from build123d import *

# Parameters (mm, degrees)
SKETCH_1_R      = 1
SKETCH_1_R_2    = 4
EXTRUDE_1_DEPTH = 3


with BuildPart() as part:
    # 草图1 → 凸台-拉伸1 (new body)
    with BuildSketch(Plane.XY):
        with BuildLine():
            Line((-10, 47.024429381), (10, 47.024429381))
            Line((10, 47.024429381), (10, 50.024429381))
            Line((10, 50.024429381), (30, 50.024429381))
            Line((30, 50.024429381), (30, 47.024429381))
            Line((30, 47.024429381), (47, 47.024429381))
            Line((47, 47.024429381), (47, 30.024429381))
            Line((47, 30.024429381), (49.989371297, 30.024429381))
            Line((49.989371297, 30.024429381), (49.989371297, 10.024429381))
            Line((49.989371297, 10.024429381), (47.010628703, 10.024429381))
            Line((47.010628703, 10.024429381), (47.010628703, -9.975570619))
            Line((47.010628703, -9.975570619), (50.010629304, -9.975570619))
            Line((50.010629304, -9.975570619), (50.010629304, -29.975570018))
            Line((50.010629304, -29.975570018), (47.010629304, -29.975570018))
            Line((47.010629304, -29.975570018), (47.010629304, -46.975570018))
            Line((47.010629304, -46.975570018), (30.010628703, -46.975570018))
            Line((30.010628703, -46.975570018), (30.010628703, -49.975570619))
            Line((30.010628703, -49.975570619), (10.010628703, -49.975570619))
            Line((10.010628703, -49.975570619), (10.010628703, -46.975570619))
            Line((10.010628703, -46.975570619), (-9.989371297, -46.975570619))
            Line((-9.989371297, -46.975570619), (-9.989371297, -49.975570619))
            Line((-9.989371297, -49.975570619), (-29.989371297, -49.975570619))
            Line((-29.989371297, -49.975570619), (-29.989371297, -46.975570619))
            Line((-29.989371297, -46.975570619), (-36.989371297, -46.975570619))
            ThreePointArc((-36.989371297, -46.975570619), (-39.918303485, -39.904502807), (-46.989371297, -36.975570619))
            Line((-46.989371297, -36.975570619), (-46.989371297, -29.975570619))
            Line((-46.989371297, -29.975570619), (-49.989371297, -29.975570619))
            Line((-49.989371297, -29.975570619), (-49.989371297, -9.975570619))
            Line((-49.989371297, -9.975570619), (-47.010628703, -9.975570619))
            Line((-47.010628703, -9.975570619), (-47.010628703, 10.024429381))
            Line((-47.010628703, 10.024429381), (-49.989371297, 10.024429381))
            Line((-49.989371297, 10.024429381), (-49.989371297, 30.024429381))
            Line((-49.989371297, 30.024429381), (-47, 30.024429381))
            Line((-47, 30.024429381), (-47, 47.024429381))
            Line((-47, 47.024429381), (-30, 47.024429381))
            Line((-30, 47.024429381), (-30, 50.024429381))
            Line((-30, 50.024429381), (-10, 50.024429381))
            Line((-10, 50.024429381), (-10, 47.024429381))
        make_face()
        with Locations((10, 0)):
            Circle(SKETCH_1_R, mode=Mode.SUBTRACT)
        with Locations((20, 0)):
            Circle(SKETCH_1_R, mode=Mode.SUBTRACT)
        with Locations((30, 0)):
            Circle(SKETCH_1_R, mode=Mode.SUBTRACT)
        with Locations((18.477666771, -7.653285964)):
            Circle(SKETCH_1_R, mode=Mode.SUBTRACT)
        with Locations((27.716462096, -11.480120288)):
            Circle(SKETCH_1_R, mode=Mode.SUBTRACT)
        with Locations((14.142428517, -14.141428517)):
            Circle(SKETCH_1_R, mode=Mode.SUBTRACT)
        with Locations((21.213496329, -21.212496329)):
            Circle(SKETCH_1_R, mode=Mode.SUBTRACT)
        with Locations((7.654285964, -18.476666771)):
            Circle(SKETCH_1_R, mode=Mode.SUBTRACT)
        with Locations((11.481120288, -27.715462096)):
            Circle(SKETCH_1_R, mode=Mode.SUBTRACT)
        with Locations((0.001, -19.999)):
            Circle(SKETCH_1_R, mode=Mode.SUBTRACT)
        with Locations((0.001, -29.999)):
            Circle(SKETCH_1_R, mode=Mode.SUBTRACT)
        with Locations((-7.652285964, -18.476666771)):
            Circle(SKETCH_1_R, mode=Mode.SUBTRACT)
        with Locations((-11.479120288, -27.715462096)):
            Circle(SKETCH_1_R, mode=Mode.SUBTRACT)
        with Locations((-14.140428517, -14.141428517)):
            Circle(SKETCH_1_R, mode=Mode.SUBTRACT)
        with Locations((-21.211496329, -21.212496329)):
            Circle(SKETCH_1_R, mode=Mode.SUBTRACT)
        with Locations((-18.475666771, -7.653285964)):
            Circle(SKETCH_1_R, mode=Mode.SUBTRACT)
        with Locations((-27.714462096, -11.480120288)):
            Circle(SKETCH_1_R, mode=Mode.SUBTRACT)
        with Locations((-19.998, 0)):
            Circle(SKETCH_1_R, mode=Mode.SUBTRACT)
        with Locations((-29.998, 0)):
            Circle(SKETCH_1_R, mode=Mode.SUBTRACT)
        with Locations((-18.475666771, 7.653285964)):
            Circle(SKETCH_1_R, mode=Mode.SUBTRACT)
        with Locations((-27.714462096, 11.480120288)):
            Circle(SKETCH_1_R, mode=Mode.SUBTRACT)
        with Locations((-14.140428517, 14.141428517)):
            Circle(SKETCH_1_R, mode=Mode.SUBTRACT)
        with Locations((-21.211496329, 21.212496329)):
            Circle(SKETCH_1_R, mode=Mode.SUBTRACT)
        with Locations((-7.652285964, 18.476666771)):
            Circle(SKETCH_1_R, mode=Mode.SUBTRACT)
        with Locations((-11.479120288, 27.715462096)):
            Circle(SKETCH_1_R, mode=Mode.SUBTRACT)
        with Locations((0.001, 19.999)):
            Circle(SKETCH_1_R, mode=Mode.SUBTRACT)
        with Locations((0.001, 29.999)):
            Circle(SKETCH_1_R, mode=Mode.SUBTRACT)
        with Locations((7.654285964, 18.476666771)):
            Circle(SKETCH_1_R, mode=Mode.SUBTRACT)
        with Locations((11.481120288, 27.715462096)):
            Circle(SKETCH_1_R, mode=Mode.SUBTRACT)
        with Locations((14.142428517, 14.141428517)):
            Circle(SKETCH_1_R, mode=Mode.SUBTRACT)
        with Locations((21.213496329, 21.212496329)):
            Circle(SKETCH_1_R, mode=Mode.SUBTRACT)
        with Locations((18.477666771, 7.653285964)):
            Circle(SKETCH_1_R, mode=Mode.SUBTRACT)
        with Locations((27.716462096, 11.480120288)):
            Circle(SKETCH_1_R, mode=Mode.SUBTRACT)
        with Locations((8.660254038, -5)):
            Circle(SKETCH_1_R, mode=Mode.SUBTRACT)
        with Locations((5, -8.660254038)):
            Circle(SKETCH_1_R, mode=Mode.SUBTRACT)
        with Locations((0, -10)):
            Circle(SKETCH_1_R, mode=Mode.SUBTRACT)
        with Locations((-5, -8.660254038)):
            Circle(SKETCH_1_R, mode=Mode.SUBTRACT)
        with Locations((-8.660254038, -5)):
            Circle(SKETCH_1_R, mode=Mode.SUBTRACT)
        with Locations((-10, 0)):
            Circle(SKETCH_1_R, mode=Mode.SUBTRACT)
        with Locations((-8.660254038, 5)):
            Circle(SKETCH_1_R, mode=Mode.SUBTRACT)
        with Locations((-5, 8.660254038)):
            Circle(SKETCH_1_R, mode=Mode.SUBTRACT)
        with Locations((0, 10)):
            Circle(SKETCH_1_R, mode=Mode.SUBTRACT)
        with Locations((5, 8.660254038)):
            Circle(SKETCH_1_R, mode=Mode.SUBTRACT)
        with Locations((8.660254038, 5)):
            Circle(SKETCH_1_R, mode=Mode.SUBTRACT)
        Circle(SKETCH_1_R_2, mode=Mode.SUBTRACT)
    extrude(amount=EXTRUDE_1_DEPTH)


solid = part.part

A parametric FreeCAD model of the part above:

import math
import FreeCAD as App
import Part
import Sketcher
from FreeCAD import Vector

doc = App.newDocument("Part")
params = doc.addObject("Spreadsheet::Sheet", "Params")
for row, (alias, value) in enumerate([
    ("sketch1_diameter", "2 mm"),
    ("sketch1_diameter2", "8 mm"),
    ("sketch1_radius", "10 mm"),
    ("sketch1_width", "20 mm"),
    ("sketch1_width2", "17 mm"),
    ("pad1_length", "3 mm"),
], start=1):
    params.set(f"A{row}", alias)
    params.set(f"B{row}", "=" + value)
    params.setAlias(f"B{row}", alias)

body = doc.addObject("PartDesign::Body", "Body")

sketch1 = doc.addObject("Sketcher::SketchObject", "Sketch")
body.addObject(sketch1)
sketch1.AttachmentSupport = (doc.XY_Plane, [""])
sketch1.MapMode = "FlatFace"
sketch1.addGeometry([
    Part.LineSegment(Vector(10, 47, 0), Vector(-10, 47, 0)),
    Part.LineSegment(Vector(-10, 47, 0), Vector(-10, 50, 0)),
    Part.LineSegment(Vector(-10, 50, 0), Vector(-30, 50, 0)),
    Part.LineSegment(Vector(-30, 50, 0), Vector(-30, 47, 0)),
    Part.LineSegment(Vector(-30, 47, 0), Vector(-47, 47, 0)),
    Part.LineSegment(Vector(-47, 47, 0), Vector(-47, 30, 0)),
    Part.LineSegment(Vector(-47, 30, 0), Vector(-50, 30, 0)),
    Part.LineSegment(Vector(-50, 30, 0), Vector(-50, 10, 0)),
    Part.LineSegment(Vector(-50, 10, 0), Vector(-47, 10, 0)),
    Part.LineSegment(Vector(-47, 10, 0), Vector(-47, -10, 0)),
    Part.LineSegment(Vector(-47, -10, 0), Vector(-50, -10, 0)),
    Part.LineSegment(Vector(-50, -10, 0), Vector(-50, -30, 0)),
    Part.LineSegment(Vector(-50, -30, 0), Vector(-47, -30, 0)),
    Part.LineSegment(Vector(-47, -30, 0), Vector(-47, -37, 0)),
    Part.ArcOfCircle(Part.Circle(Vector(-47, -47, 0), Vector(0, 0, 1), 10), math.radians(0), math.radians(90)),
    Part.LineSegment(Vector(-37, -47, 0), Vector(-30, -47, 0)),
    Part.LineSegment(Vector(-30, -47, 0), Vector(-30, -50, 0)),
    Part.LineSegment(Vector(-30, -50, 0), Vector(-10, -50, 0)),
    Part.LineSegment(Vector(-10, -50, 0), Vector(-10, -47, 0)),
    Part.LineSegment(Vector(-10, -47, 0), Vector(10, -47, 0)),
    Part.LineSegment(Vector(10, -47, 0), Vector(10, -50, 0)),
    Part.LineSegment(Vector(10, -50, 0), Vector(30, -50, 0)),
    Part.LineSegment(Vector(30, -50, 0), Vector(30, -47, 0)),
    Part.LineSegment(Vector(30, -47, 0), Vector(47, -47, 0)),
    Part.LineSegment(Vector(47, -47, 0), Vector(47, -30, 0)),
    Part.LineSegment(Vector(47, -30, 0), Vector(50, -30, 0)),
    Part.LineSegment(Vector(50, -30, 0), Vector(50, -10, 0)),
    Part.LineSegment(Vector(50, -10, 0), Vector(47, -10, 0)),
    Part.LineSegment(Vector(47, -10, 0), Vector(47, 10, 0)),
    Part.LineSegment(Vector(47, 10, 0), Vector(50, 10, 0)),
    Part.LineSegment(Vector(50, 10, 0), Vector(50, 30, 0)),
    Part.LineSegment(Vector(50, 30, 0), Vector(47, 30, 0)),
    Part.LineSegment(Vector(47, 30, 0), Vector(47, 47, 0)),
    Part.LineSegment(Vector(47, 47, 0), Vector(30, 47, 0)),
    Part.LineSegment(Vector(30, 47, 0), Vector(30, 50, 0)),
    Part.LineSegment(Vector(30, 50, 0), Vector(10, 50, 0)),
    Part.LineSegment(Vector(10, 50, 0), Vector(10, 47, 0)),
    Part.Circle(Vector(21.2, -21.2, 0), Vector(0, 0, 1), 1),
    Part.Circle(Vector(11.5, -27.7, 0), Vector(0, 0, 1), 1),
    Part.Circle(Vector(7.7, -18.5, 0), Vector(0, 0, 1), 1),
    Part.Circle(Vector(27.7, -11.5, 0), Vector(0, 0, 1), 1),
    Part.Circle(Vector(18.5, -7.7, 0), Vector(0, 0, 1), 1),
    Part.Circle(Vector(14.1, -14.1, 0), Vector(0, 0, 1), 1),
    Part.Circle(Vector(5, -8.7, 0), Vector(0, 0, 1), 1),
    Part.Circle(Vector(8.7, -5, 0), Vector(0, 0, 1), 1),
    Part.Circle(Vector(0, -30, 0), Vector(0, 0, 1), 1),
    Part.Circle(Vector(-11.5, -27.7, 0), Vector(0, 0, 1), 1),
    Part.Circle(Vector(0, -20, 0), Vector(0, 0, 1), 1),
    Part.Circle(Vector(-7.7, -18.5, 0), Vector(0, 0, 1), 1),
    Part.Circle(Vector(-21.2, -21.2, 0), Vector(0, 0, 1), 1),
    Part.Circle(Vector(0, -10, 0), Vector(0, 0, 1), 1),
    Part.Circle(Vector(-5, -8.7, 0), Vector(0, 0, 1), 1),
    Part.Circle(Vector(-14.1, -14.1, 0), Vector(0, 0, 1), 1),
    Part.Circle(Vector(-8.7, -5, 0), Vector(0, 0, 1), 1),
    Part.Circle(Vector(-27.7, -11.5, 0), Vector(0, 0, 1), 1),
    Part.Circle(Vector(-18.5, -7.7, 0), Vector(0, 0, 1), 1),
    Part.Circle(Vector(30, 0, 0), Vector(0, 0, 1), 1),
    Part.Circle(Vector(20, 0, 0), Vector(0, 0, 1), 1),
    Part.Circle(Vector(18.5, 7.7, 0), Vector(0, 0, 1), 1),
    Part.Circle(Vector(27.7, 11.5, 0), Vector(0, 0, 1), 1),
    Part.Circle(Vector(10, 0, 0), Vector(0, 0, 1), 1),
    Part.Circle(Vector(8.7, 5, 0), Vector(0, 0, 1), 1),
    Part.Circle(Vector(14.1, 14.1, 0), Vector(0, 0, 1), 1),
    Part.Circle(Vector(5, 8.7, 0), Vector(0, 0, 1), 1),
    Part.Circle(Vector(21.2, 21.2, 0), Vector(0, 0, 1), 1),
    Part.Circle(Vector(7.7, 18.5, 0), Vector(0, 0, 1), 1),
    Part.Circle(Vector(11.5, 27.7, 0), Vector(0, 0, 1), 1),
    Part.Circle(Vector(0, 0, 0), Vector(0, 0, 1), 4),
    Part.Circle(Vector(-10, 0, 0), Vector(0, 0, 1), 1),
    Part.Circle(Vector(-8.7, 5, 0), Vector(0, 0, 1), 1),
    Part.Circle(Vector(0, 10, 0), Vector(0, 0, 1), 1),
    Part.Circle(Vector(-5, 8.7, 0), Vector(0, 0, 1), 1),
    Part.Circle(Vector(-14.1, 14.1, 0), Vector(0, 0, 1), 1),
    Part.Circle(Vector(-20, 0, 0), Vector(0, 0, 1), 1),
    Part.Circle(Vector(-18.5, 7.7, 0), Vector(0, 0, 1), 1),
    Part.Circle(Vector(-30, 0, 0), Vector(0, 0, 1), 1),
    Part.Circle(Vector(-27.7, 11.5, 0), Vector(0, 0, 1), 1),
    Part.Circle(Vector(-7.7, 18.5, 0), Vector(0, 0, 1), 1),
    Part.Circle(Vector(0, 20, 0), Vector(0, 0, 1), 1),
    Part.Circle(Vector(0, 30, 0), Vector(0, 0, 1), 1),
    Part.Circle(Vector(-11.5, 27.7, 0), Vector(0, 0, 1), 1),
    Part.Circle(Vector(-21.2, 21.2, 0), Vector(0, 0, 1), 1),
], False)
sketch1.addConstraint([
    Sketcher.Constraint("Coincident", 0, 2, 1, 1),
    Sketcher.Constraint("Coincident", 1, 2, 2, 1),
    Sketcher.Constraint("Coincident", 2, 2, 3, 1),
    Sketcher.Constraint("Coincident", 3, 2, 4, 1),
    Sketcher.Constraint("Coincident", 4, 2, 5, 1),
    Sketcher.Constraint("Coincident", 5, 2, 6, 1),
    Sketcher.Constraint("Coincident", 6, 2, 7, 1),
    Sketcher.Constraint("Coincident", 7, 2, 8, 1),
    Sketcher.Constraint("Coincident", 8, 2, 9, 1),
    Sketcher.Constraint("Coincident", 9, 2, 10, 1),
    Sketcher.Constraint("Coincident", 10, 2, 11, 1),
    Sketcher.Constraint("Coincident", 11, 2, 12, 1),
    Sketcher.Constraint("Coincident", 12, 2, 13, 1),
    Sketcher.Constraint("Coincident", 13, 2, 14, 2),
    Sketcher.Constraint("Coincident", 14, 1, 15, 1),
    Sketcher.Constraint("Coincident", 15, 2, 16, 1),
    Sketcher.Constraint("Coincident", 16, 2, 17, 1),
    Sketcher.Constraint("Coincident", 17, 2, 18, 1),
    Sketcher.Constraint("Coincident", 18, 2, 19, 1),
    Sketcher.Constraint("Coincident", 19, 2, 20, 1),
    Sketcher.Constraint("Coincident", 20, 2, 21, 1),
    Sketcher.Constraint("Coincident", 21, 2, 22, 1),
    Sketcher.Constraint("Coincident", 22, 2, 23, 1),
    Sketcher.Constraint("Coincident", 23, 2, 24, 1),
    Sketcher.Constraint("Coincident", 24, 2, 25, 1),
    Sketcher.Constraint("Coincident", 25, 2, 26, 1),
    Sketcher.Constraint("Coincident", 26, 2, 27, 1),
    Sketcher.Constraint("Coincident", 27, 2, 28, 1),
    Sketcher.Constraint("Coincident", 28, 2, 29, 1),
    Sketcher.Constraint("Coincident", 29, 2, 30, 1),
    Sketcher.Constraint("Coincident", 30, 2, 31, 1),
    Sketcher.Constraint("Coincident", 31, 2, 32, 1),
    Sketcher.Constraint("Coincident", 32, 2, 33, 1),
    Sketcher.Constraint("Coincident", 33, 2, 34, 1),
    Sketcher.Constraint("Coincident", 34, 2, 35, 1),
    Sketcher.Constraint("Coincident", 35, 2, 36, 1),
    Sketcher.Constraint("Coincident", 36, 2, 0, 1),
    Sketcher.Constraint("Horizontal", 0),
    Sketcher.Constraint("Vertical", 1),
    Sketcher.Constraint("Horizontal", 2),
    Sketcher.Constraint("Vertical", 3),
    Sketcher.Constraint("Horizontal", 4),
    Sketcher.Constraint("Vertical", 5),
    Sketcher.Constraint("Horizontal", 6),
    Sketcher.Constraint("Vertical", 7),
    Sketcher.Constraint("Horizontal", 8),
    Sketcher.Constraint("Vertical", 9),
    Sketcher.Constraint("Horizontal", 10),
    Sketcher.Constraint("Vertical", 11),
    Sketcher.Constraint("Horizontal", 12),
    Sketcher.Constraint("Vertical", 13),
    Sketcher.Constraint("Horizontal", 15),
    Sketcher.Constraint("Vertical", 16),
    Sketcher.Constraint("Horizontal", 17),
    Sketcher.Constraint("Vertical", 18),
    Sketcher.Constraint("Horizontal", 19),
    Sketcher.Constraint("Vertical", 20),
    Sketcher.Constraint("Horizontal", 21),
    Sketcher.Constraint("Vertical", 22),
    Sketcher.Constraint("Horizontal", 23),
    Sketcher.Constraint("Vertical", 24),
    Sketcher.Constraint("Horizontal", 25),
    Sketcher.Constraint("Vertical", 26),
    Sketcher.Constraint("Horizontal", 27),
    Sketcher.Constraint("Vertical", 28),
    Sketcher.Constraint("Horizontal", 29),
    Sketcher.Constraint("Vertical", 30),
    Sketcher.Constraint("Horizontal", 31),
    Sketcher.Constraint("Vertical", 32),
    Sketcher.Constraint("Horizontal", 33),
    Sketcher.Constraint("Vertical", 34),
    Sketcher.Constraint("Horizontal", 35),
    Sketcher.Constraint("Vertical", 36),
    Sketcher.Constraint("Coincident", 67, 3, -1, 1),
    Sketcher.Constraint("Equal", 37, 38),
    Sketcher.Constraint("Equal", 38, 39),
    Sketcher.Constraint("Equal", 39, 40),
    Sketcher.Constraint("Equal", 40, 41),
    Sketcher.Constraint("Equal", 41, 42),
    Sketcher.Constraint("Equal", 42, 43),
    Sketcher.Constraint("Equal", 43, 44),
    Sketcher.Constraint("Equal", 44, 45),
    Sketcher.Constraint("Equal", 45, 46),
    Sketcher.Constraint("Equal", 46, 47),
    Sketcher.Constraint("Equal", 47, 48),
    Sketcher.Constraint("Equal", 48, 49),
    Sketcher.Constraint("Equal", 49, 50),
    Sketcher.Constraint("Equal", 50, 51),
    Sketcher.Constraint("Equal", 51, 52),
    Sketcher.Constraint("Equal", 52, 53),
    Sketcher.Constraint("Equal", 53, 54),
    Sketcher.Constraint("Equal", 54, 55),
    Sketcher.Constraint("Equal", 55, 56),
    Sketcher.Constraint("Equal", 56, 57),
    Sketcher.Constraint("Equal", 57, 58),
    Sketcher.Constraint("Equal", 58, 59),
    Sketcher.Constraint("Equal", 59, 60),
    Sketcher.Constraint("Equal", 60, 61),
    Sketcher.Constraint("Equal", 61, 62),
    Sketcher.Constraint("Equal", 62, 63),
    Sketcher.Constraint("Equal", 63, 64),
    Sketcher.Constraint("Equal", 64, 65),
    Sketcher.Constraint("Equal", 65, 66),
    Sketcher.Constraint("Equal", 66, 68),
    Sketcher.Constraint("Equal", 68, 69),
    Sketcher.Constraint("Equal", 69, 70),
    Sketcher.Constraint("Equal", 70, 71),
    Sketcher.Constraint("Equal", 71, 72),
    Sketcher.Constraint("Equal", 72, 73),
    Sketcher.Constraint("Equal", 73, 74),
    Sketcher.Constraint("Equal", 74, 75),
    Sketcher.Constraint("Equal", 75, 76),
    Sketcher.Constraint("Equal", 76, 77),
    Sketcher.Constraint("Equal", 77, 78),
    Sketcher.Constraint("Equal", 78, 79),
    Sketcher.Constraint("Equal", 79, 80),
    Sketcher.Constraint("Equal", 80, 81),
    Sketcher.Constraint("Symmetric", 53, 3, 61, 3, -1, 1),
    Sketcher.Constraint("Symmetric", 51, 3, 63, 3, -1, 1),
    Sketcher.Constraint("Symmetric", 60, 3, 68, 3, -1, 1),
    Sketcher.Constraint("Symmetric", 44, 3, 69, 3, -1, 1),
    Sketcher.Constraint("Symmetric", 50, 3, 70, 3, -1, 1),
    Sketcher.Constraint("Symmetric", 43, 3, 71, 3, -1, 1),
    Sketcher.Constraint("Symmetric", 43, 3, 51, 3, -2),
    Sketcher.Constraint("Symmetric", 44, 3, 53, 3, -2),
    Sketcher.Constraint("Symmetric", 9, 2, 27, 2, -2),
    Sketcher.Constraint("Symmetric", 7, 2, 29, 2, -2),
    Sketcher.Constraint("Symmetric", 5, 2, 31, 2, -2),
    Sketcher.Constraint("Symmetric", 3, 2, 33, 2, -2),
    Sketcher.Constraint("Symmetric", 1, 2, 35, 2, -2),
    Sketcher.Constraint("Symmetric", 41, 3, 58, 3, -1),
    Sketcher.Constraint("Symmetric", 40, 3, 59, 3, -1),
    Sketcher.Constraint("Symmetric", 42, 3, 62, 3, -1),
    Sketcher.Constraint("Symmetric", 37, 3, 64, 3, -1),
    Sketcher.Constraint("Symmetric", 39, 3, 65, 3, -1),
    Sketcher.Constraint("Symmetric", 38, 3, 66, 3, -1),
    Sketcher.Constraint("Symmetric", 52, 3, 72, 3, -1),
    Sketcher.Constraint("Symmetric", 55, 3, 74, 3, -1),
    Sketcher.Constraint("Symmetric", 54, 3, 76, 3, -1),
    Sketcher.Constraint("Symmetric", 48, 3, 77, 3, -1),
    Sketcher.Constraint("Symmetric", 47, 3, 78, 3, -1),
    Sketcher.Constraint("Symmetric", 45, 3, 79, 3, -1),
    Sketcher.Constraint("Symmetric", 46, 3, 80, 3, -1),
    Sketcher.Constraint("Symmetric", 49, 3, 81, 3, -1),
    Sketcher.Constraint("PointOnObject", 50, 3, -2),
    Sketcher.Constraint("PointOnObject", 56, 3, -1),
    Sketcher.Constraint("PointOnObject", 57, 3, -1),
    Sketcher.Constraint("PointOnObject", 60, 3, -1),
    Sketcher.Constraint("PointOnObject", 73, 3, -1),
    Sketcher.Constraint("PointOnObject", 75, 3, -1),
    Sketcher.Constraint("Horizontal", 38, 3, 46, 3),
    Sketcher.Constraint("Horizontal", 39, 3, 48, 3),
    Sketcher.Constraint("Horizontal", 37, 3, 49, 3),
    Sketcher.Constraint("Horizontal", 42, 3, 52, 3),
    Sketcher.Constraint("Horizontal", 40, 3, 54, 3),
    Sketcher.Constraint("Horizontal", 41, 3, 55, 3),
    Sketcher.Constraint("Horizontal", 0, 2, 3, 2),
    Sketcher.Constraint("Horizontal", 15, 2, 18, 2),
    Sketcher.Constraint("Horizontal", 17, 2, 20, 2),
    Sketcher.Constraint("Horizontal", 19, 2, 22, 2),
    Sketcher.Constraint("Horizontal", 12, 2, 24, 2),
    Sketcher.Constraint("Vertical", 45, 3, 47, 3),
    Sketcher.Constraint("Vertical", 68, 3, 0, 2),
    Sketcher.Constraint("Vertical", 7, 2, 10, 2),
    Sketcher.Constraint("Vertical", 14, 3, 12, 2),
    Sketcher.Constraint("Vertical", 24, 2, 27, 2),
    Sketcher.Constraint("Vertical", 56, 3, 33, 2),
    Sketcher.Constraint("Equal", 0, 2),
    Sketcher.Constraint("Equal", 2, 17),
    Sketcher.Constraint("Equal", 17, 19),
    Sketcher.Constraint("Equal", 19, 21),
    Sketcher.Constraint("Equal", 4, 23),
    Sketcher.Constraint("Equal", 12, 25),
    Sketcher.Constraint("Equal", 27, 1),
    Sketcher.Constraint("Equal", 33, 5),
    Sketcher.Constraint("Equal", 35, 7),
    Sketcher.Constraint("Equal", 7, 9),
    Sketcher.Constraint("Equal", 9, 11),
    Sketcher.Constraint("Equal", 15, 13),
    Sketcher.Constraint("Equal", 3, 16),
    Sketcher.Constraint("Equal", 5, 24),
    Sketcher.Constraint("Diameter", 37, 2.0),
    Sketcher.Constraint("Diameter", 67, 8.0),
    Sketcher.Constraint("Radius", 14, 10.0),
    Sketcher.Constraint("DistanceX", 0, 2, 0, 1, 20.0),
    Sketcher.Constraint("DistanceX", 4, 2, 4, 1, 17.0),
    Sketcher.Constraint("DistanceX", 12, 1, 12, 2, 3.0),
    Sketcher.Constraint("DistanceX", 15, 1, 15, 2, 7.0),
    Sketcher.Constraint("DistanceX", -1, 1, 43, 3, 5.0),
    Sketcher.Constraint("DistanceY", 44, 3, -1, 1, 5.0),
    Sketcher.Constraint("DistanceY", 50, 3, -1, 1, 10.0),
    Sketcher.Constraint("DistanceX", -1, 1, 57, 3, 20.0),
    Sketcher.Constraint("DistanceX", -1, 1, 45, 3, 0.001),
    Sketcher.Constraint("DistanceY", 45, 3, -1, 1, 29.999),
    Sketcher.Constraint("DistanceY", 47, 3, -1, 1, 19.999),
    Sketcher.Constraint("DistanceX", 73, 3, -1, 1, 19.998),
    Sketcher.Constraint("DistanceX", 75, 3, -1, 1, 29.998),
    Sketcher.Constraint("DistanceX", 6, 2, 6, 1, 2.989371),
    Sketcher.Constraint("DistanceY", 14, 3, -1, 1, 46.975571),
    Sketcher.Constraint("DistanceX", -1, 1, 38, 3, 11.48112),
    Sketcher.Constraint("DistanceY", 40, 3, -1, 1, 11.48012),
    Sketcher.Constraint("DistanceX", -1, 1, 42, 3, 14.142429),
    Sketcher.Constraint("DistanceY", 42, 3, -1, 1, 14.141429),
    Sketcher.Constraint("DistanceX", 46, 3, -1, 1, 11.47912),
    Sketcher.Constraint("DistanceX", 52, 3, -1, 1, 14.140429),
    Sketcher.Constraint("DistanceX", -1, 1, 37, 3, 21.213496),
    Sketcher.Constraint("DistanceY", 37, 3, -1, 1, 21.212496),
    Sketcher.Constraint("DistanceY", 38, 3, -1, 1, 27.715462),
    Sketcher.Constraint("DistanceX", -1, 1, 39, 3, 7.654286),
    Sketcher.Constraint("DistanceY", 39, 3, -1, 1, 18.476667),
    Sketcher.Constraint("DistanceX", -1, 1, 40, 3, 27.716462),
    Sketcher.Constraint("DistanceX", -1, 1, 41, 3, 18.477667),
    Sketcher.Constraint("DistanceY", 41, 3, -1, 1, 7.653286),
    Sketcher.Constraint("DistanceY", 43, 3, -1, 1, 8.660254),
    Sketcher.Constraint("DistanceX", -1, 1, 44, 3, 8.660254),
    Sketcher.Constraint("DistanceX", 48, 3, -1, 1, 7.652286),
    Sketcher.Constraint("DistanceX", 49, 3, -1, 1, 21.211496),
    Sketcher.Constraint("DistanceX", 54, 3, -1, 1, 27.714462),
    Sketcher.Constraint("DistanceX", 55, 3, -1, 1, 18.475667),
])
sketch1.setExpression("Constraints[181]", "Params.sketch1_diameter")
sketch1.setExpression("Constraints[182]", "Params.sketch1_diameter2")
sketch1.setExpression("Constraints[183]", "Params.sketch1_radius")
sketch1.setExpression("Constraints[184]", "Params.sketch1_width")
sketch1.setExpression("Constraints[185]", "Params.sketch1_width2")
pad1 = doc.addObject("PartDesign::Pad", "Pad")
body.addObject(pad1)
pad1.Profile = sketch1
pad1.setExpression("Length", "Params.pad1_length")

doc.recompute()
